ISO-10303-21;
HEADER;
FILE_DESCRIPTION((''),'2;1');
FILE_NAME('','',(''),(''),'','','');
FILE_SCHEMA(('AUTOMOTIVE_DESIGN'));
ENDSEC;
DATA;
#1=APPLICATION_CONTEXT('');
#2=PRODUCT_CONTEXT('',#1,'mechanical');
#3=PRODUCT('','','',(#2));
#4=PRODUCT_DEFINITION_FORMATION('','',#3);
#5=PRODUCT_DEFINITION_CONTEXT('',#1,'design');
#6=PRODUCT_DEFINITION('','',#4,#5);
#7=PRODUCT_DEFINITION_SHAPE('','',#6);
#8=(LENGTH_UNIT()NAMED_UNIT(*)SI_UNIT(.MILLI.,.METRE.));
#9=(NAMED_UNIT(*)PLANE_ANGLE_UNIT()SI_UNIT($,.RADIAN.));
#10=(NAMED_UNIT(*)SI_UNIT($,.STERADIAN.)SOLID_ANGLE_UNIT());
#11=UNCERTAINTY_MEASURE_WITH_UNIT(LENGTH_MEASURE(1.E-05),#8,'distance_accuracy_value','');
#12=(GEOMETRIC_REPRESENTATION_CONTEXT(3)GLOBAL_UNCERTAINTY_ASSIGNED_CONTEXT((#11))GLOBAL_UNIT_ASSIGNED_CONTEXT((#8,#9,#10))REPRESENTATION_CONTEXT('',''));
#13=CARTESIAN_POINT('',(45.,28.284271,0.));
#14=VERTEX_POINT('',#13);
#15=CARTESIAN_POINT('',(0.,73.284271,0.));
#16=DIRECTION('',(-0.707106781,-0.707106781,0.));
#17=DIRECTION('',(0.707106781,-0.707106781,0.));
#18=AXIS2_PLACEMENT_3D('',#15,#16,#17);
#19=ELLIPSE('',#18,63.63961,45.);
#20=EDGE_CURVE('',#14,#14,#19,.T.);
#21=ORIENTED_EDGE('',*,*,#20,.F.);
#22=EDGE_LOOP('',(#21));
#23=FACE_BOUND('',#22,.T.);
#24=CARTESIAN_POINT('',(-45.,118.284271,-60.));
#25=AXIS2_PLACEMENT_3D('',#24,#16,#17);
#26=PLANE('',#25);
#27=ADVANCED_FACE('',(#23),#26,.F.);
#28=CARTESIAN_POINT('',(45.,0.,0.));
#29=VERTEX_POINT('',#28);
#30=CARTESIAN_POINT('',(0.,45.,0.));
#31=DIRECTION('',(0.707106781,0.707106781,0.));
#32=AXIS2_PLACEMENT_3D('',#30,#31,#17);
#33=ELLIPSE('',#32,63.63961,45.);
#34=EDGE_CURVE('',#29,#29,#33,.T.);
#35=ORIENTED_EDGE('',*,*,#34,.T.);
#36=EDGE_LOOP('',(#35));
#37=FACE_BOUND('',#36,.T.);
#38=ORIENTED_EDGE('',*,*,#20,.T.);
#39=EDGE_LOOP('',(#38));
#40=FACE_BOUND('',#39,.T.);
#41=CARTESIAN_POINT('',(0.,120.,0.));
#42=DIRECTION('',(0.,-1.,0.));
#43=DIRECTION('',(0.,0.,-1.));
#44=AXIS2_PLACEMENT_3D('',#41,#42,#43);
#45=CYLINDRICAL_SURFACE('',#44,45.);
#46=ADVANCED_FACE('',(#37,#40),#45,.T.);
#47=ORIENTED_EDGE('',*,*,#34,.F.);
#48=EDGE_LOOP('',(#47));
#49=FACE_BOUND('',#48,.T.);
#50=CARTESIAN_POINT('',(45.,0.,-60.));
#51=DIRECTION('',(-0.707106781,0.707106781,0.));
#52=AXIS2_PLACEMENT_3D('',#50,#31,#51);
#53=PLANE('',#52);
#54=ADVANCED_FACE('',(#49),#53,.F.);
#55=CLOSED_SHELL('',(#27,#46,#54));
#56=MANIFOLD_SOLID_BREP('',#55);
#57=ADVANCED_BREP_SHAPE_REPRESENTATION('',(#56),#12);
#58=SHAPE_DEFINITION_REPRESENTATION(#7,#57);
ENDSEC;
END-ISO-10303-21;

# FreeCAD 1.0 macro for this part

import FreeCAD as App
import Part
import Sketcher
from FreeCAD import Vector
Q = App.Units.Quantity

doc = App.newDocument("Part")
body = doc.addObject("PartDesign::Body", "Body")

sketch1 = body.newObject("Sketcher::SketchObject", "Sketch")
sketch1.AttachmentSupport = (doc.getObject("XZ_Plane"), [""])
sketch1.MapMode = "FlatFace"
sketch1.addGeometry(Part.Circle(Vector(0, 0, 0), Vector(0, 0, 1), 45), False)
sketch1.addConstraint([
    Sketcher.Constraint("Coincident", 0, 3, -1, 1),
    Sketcher.Constraint("Diameter", 0, Q("90 mm")),
])
pad1 = body.newObject("PartDesign::Pad", "Pad")
pad1.Profile = sketch1
pad1.Length = 120
pad1.Reversed = True

sketch2 = body.newObject("Sketcher::SketchObject", "Sketch001")
sketch2.AttachmentSupport = (doc.getObject("XY_Plane"), [""])
sketch2.MapMode = "FlatFace"
sketch2.addGeometry([
    Part.LineSegment(Vector(45, 0, 0), Vector(-45, 90, 0)),
    Part.LineSegment(Vector(-45, 90, 0), Vector(-45, 0, 0)),
    Part.LineSegment(Vector(-45, 0, 0), Vector(45, 0, 0)),
    Part.LineSegment(Vector(-45, 118.284271, 0), Vector(45, 28.284271, 0)),
    Part.LineSegment(Vector(45, 28.284271, 0), Vector(45, 120, 0)),
    Part.LineSegment(Vector(45, 120, 0), Vector(-45, 120, 0)),
    Part.LineSegment(Vector(-45, 120, 0), Vector(-45, 118.284271, 0)),
], False)
sketch2.addConstraint([
    Sketcher.Constraint("Coincident", 0, 2, 1, 1),
    Sketcher.Constraint("Coincident", 1, 2, 2, 1),
    Sketcher.Constraint("Coincident", 2, 2, 0, 1),
    Sketcher.Constraint("Coincident", 3, 2, 4, 1),
    Sketcher.Constraint("Coincident", 4, 2, 5, 1),
    Sketcher.Constraint("Coincident", 5, 2, 6, 1),
    Sketcher.Constraint("Coincident", 6, 2, 3, 1),
    Sketcher.Constraint("Vertical", 1),
    Sketcher.Constraint("Horizontal", 2),
    Sketcher.Constraint("Vertical", 4),
    Sketcher.Constraint("Horizontal", 5),
    Sketcher.Constraint("Vertical", 6),
    Sketcher.Constraint("Symmetric", 1, 2, 2, 2, -1, 1),
    Sketcher.Constraint("Parallel", 0, 3),
    Sketcher.Constraint("Vertical", 2, 2, 3, 2),
    Sketcher.Constraint("Vertical", 1, 2, 5, 2),
    Sketcher.Constraint("Equal", 5, 1),
    Sketcher.Constraint("DistanceX", 2, 1, 2, 2, Q("90 mm")),
    Sketcher.Constraint("DistanceY", -1, 1, 4, 2, Q("120 mm")),
    Sketcher.Constraint("DistanceY", 4, 1, 4, 2, Q("91.715729 mm")),
])
pocket1 = body.newObject("PartDesign::Pocket", "Pocket")
pocket1.Profile = sketch2
pocket1.Length = 120
pocket1.Midplane = True

doc.recompute()
